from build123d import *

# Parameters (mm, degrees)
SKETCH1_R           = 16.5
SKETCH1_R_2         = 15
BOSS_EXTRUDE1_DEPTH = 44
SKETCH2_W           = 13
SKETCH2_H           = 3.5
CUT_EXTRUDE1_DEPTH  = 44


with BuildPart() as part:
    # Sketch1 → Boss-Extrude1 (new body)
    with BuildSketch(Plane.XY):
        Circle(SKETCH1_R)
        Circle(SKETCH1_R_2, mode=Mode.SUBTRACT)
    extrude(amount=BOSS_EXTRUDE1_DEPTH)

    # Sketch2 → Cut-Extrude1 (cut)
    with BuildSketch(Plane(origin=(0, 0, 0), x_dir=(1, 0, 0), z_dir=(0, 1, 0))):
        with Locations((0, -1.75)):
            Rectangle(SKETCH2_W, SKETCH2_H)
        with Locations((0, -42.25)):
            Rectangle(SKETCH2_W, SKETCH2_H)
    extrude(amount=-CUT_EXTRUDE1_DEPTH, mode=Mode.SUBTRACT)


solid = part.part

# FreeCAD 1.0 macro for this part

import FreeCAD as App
import Part
import Sketcher
Q = App.Units.Quantity

doc = App.newDocument("Part")
params = doc.addObject("Spreadsheet::Sheet", "Params")
for row, (alias, value) in enumerate([
    ("sketch1_diameter", "33 mm"),
    ("sketch1_diameter2", "30 mm"),
    ("pad1_length", "44 mm"),
    ("sketch2_width", "13 mm"),
    ("sketch2_height", "3.5 mm"),
    ("pocket1_length", "44 mm"),
], start=1):
    params.set(f"A{row}", alias)
    params.set(f"B{row}", "=" + value)
    params.setAlias(f"B{row}", alias)

body = doc.addObject("PartDesign::Body", "Body")

# Sketch on XY plane
sketch1 = body.newObject("Sketcher::SketchObject", "Sketch")
sketch1.AttachmentSupport = (doc.getObject("XY_Plane"), [""])
sketch1.MapMode = "FlatFace"
sketch1.addGeometry(Part.Circle(App.Vector(0, 0, 0), App.Vector(0, 0, 1), 16), False)
sketch1.addGeometry(Part.Circle(App.Vector(0, 0, 0), App.Vector(0, 0, 1), 15), False)
sketch1.addConstraint(Sketcher.Constraint("Coincident", 0, 3, -1, 1))
sketch1.addConstraint(Sketcher.Constraint("Coincident", 1, 3, -1, 1))
sketch1.addConstraint(Sketcher.Constraint("Diameter", 0, Q("33 mm")))
sketch1.addConstraint(Sketcher.Constraint("Diameter", 1, Q("30 mm")))
sketch1.setExpression("Constraints[2]", "Params.sketch1_diameter")
sketch1.setExpression("Constraints[3]", "Params.sketch1_diameter2")
pad1 = body.newObject("PartDesign::Pad", "Pad")
pad1.Profile = sketch1
pad1.setExpression("Length", "Params.pad1_length")

# Sketch on XZ plane
sketch2 = body.newObject("Sketcher::SketchObject", "Sketch001")
sketch2.AttachmentSupport = (doc.getObject("XZ_Plane"), [""])
sketch2.MapMode = "FlatFace"
sketch2.addGeometry(Part.LineSegment(App.Vector(-6.5, 0, 0), App.Vector(-6.5, 3.5, 0)), False)
sketch2.addGeometry(Part.LineSegment(App.Vector(-6.5, 3.5, 0), App.Vector(6.5, 3.5, 0)), False)
sketch2.addGeometry(Part.LineSegment(App.Vector(6.5, 3.5, 0), App.Vector(6.5, 0, 0)), False)
sketch2.addGeometry(Part.LineSegment(App.Vector(6.5, 0, 0), App.Vector(-6.5, 0, 0)), False)
sketch2.addGeometry(Part.LineSegment(App.Vector(-6.5, 40.5, 0), App.Vector(-6.5, 44, 0)), False)
sketch2.addGeometry(Part.LineSegment(App.Vector(-6.5, 44, 0), App.Vector(6.5, 44, 0)), False)
sketch2.addGeometry(Part.LineSegment(App.Vector(6.5, 44, 0), App.Vector(6.5, 40.5, 0)), False)
sketch2.addGeometry(Part.LineSegment(App.Vector(6.5, 40.5, 0), App.Vector(-6.5, 40.5, 0)), False)
sketch2.addConstraint(Sketcher.Constraint("Coincident", 0, 2, 1, 1))
sketch2.addConstraint(Sketcher.Constraint("Coincident", 1, 2, 2, 1))
sketch2.addConstraint(Sketcher.Constraint("Coincident", 2, 2, 3, 1))
sketch2.addConstraint(Sketcher.Constraint("Coincident", 3, 2, 0, 1))
sketch2.addConstraint(Sketcher.Constraint("Coincident", 4, 2, 5, 1))
sketch2.addConstraint(Sketcher.Constraint("Coincident", 5, 2, 6, 1))
sketch2.addConstraint(Sketcher.Constraint("Coincident", 6, 2, 7, 1))
sketch2.addConstraint(Sketcher.Constraint("Coincident", 7, 2, 4, 1))
sketch2.addConstraint(Sketcher.Constraint("Vertical", 0))
sketch2.addConstraint(Sketcher.Constraint("Horizontal", 1))
sketch2.addConstraint(Sketcher.Constraint("Vertical", 2))
sketch2.addConstraint(Sketcher.Constraint("Horizontal", 3))
sketch2.addConstraint(Sketcher.Constraint("Vertical", 4))
sketch2.addConstraint(Sketcher.Constraint("Horizontal", 5))
sketch2.addConstraint(Sketcher.Constraint("Vertical", 6))
sketch2.addConstraint(Sketcher.Constraint("Horizontal", 7))
sketch2.addConstraint(Sketcher.Constraint("Symmetric", 2, 2, 3, 2, -1, 1))
sketch2.addConstraint(Sketcher.Constraint("Vertical", 3, 2, 4, 2))
sketch2.addConstraint(Sketcher.Constraint("Vertical", 2, 2, 5, 2))
sketch2.addConstraint(Sketcher.Constraint("Equal", 2, 4))
sketch2.addConstraint(Sketcher.Constraint("DistanceX", 1, 1, 1, 2, Q("13 mm")))
sketch2.addConstraint(Sketcher.Constraint("DistanceY", 0, 1, 0, 2, Q("3.5 mm")))
sketch2.addConstraint(Sketcher.Constraint("DistanceY", -1, 1, 4, 2, Q("44 mm")))
sketch2.setExpression("Constraints[20]", "Params.sketch2_width")
sketch2.setExpression("Constraints[21]", "Params.sketch2_height")
pocket1 = body.newObject("PartDesign::Pocket", "Pocket")
pocket1.Profile = sketch2
pocket1.setExpression("Length", "Params.pocket1_length")
pocket1.Reversed = True

doc.recompute()
